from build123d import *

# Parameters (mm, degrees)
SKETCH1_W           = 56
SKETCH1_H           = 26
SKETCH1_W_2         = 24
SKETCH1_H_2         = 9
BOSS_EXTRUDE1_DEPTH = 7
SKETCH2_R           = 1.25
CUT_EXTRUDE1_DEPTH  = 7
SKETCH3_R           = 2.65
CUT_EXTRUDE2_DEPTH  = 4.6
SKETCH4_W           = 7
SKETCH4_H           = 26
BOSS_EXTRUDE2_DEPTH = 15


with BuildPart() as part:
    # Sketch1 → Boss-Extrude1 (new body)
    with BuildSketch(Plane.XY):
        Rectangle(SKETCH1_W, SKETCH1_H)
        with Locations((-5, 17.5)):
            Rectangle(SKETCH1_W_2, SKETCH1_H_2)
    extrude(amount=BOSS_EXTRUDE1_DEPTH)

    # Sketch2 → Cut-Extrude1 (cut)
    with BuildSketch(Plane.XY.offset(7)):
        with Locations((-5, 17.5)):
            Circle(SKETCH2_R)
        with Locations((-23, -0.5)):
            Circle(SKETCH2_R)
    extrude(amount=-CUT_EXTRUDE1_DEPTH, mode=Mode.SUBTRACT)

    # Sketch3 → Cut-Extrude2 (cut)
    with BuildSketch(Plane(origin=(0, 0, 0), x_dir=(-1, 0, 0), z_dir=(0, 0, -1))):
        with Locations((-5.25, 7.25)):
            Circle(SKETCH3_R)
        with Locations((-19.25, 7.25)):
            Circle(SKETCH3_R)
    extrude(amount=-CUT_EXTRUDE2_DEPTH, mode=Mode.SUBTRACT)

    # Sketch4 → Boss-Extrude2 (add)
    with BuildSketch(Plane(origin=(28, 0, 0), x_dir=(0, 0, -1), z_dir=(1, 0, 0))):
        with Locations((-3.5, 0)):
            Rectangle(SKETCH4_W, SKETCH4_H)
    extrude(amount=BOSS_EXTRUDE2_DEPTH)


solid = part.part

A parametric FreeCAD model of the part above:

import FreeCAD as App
import Part
import Sketcher

V = App.Vector
Q = App.Units.Quantity


def add_polygon(sketch, points):
    """Adds a closed chain of lines whose ends are joined by coincident constraints."""
    first, n = sketch.GeometryCount, len(points)
    for a, b in zip(points, points[1:] + points[:1]):
        sketch.addGeometry(Part.LineSegment(App.Vector(*a, 0), App.Vector(*b, 0)), False)
    for i in range(n):
        sketch.addConstraint(Sketcher.Constraint("Coincident", first + i, 2, first + (i + 1) % n, 1))

doc = App.newDocument("Part")
params = doc.addObject("Spreadsheet::Sheet", "Params")
for row, (alias, value) in enumerate([
    ("sketch1_width", "56 mm"),
    ("sketch1_width2", "21 mm"),
    ("sketch1_width3", "24 mm"),
    ("sketch1_height", "26 mm"),
    ("sketch1_height2", "9 mm"),
    ("pad1_length", "7 mm"),
    ("sketch2_diameter", "2.5 mm"),
    ("pocket1_length", "7 mm"),
    ("sketch3_diameter", "5.3 mm"),
    ("pocket2_length", "4.6 mm"),
    ("sketch4_width", "26 mm"),
    ("sketch4_height", "7 mm"),
    ("pad2_length", "15 mm"),
], start=1):
    params.set(f"A{row}", alias)
    params.set(f"B{row}", "=" + value)
    params.setAlias(f"B{row}", alias)

body = doc.addObject("PartDesign::Body", "Body")

sketch1 = body.newObject("Sketcher::SketchObject", "Sketch")
sketch1.AttachmentSupport = (doc.getObject("XY_Plane"), [""])
sketch1.MapMode = "FlatFace"
add_polygon(sketch1, [(-28, 13), (-28, -13), (28, -13), (28, 13), (7, 13), (7, 22), (-17, 22), (-17, 13)])
sketch1.addConstraint([
    Sketcher.Constraint("Vertical", 0),
    Sketcher.Constraint("Horizontal", 1),
    Sketcher.Constraint("Vertical", 2),
    Sketcher.Constraint("Horizontal", 3),
    Sketcher.Constraint("Vertical", 4),
    Sketcher.Constraint("Horizontal", 5),
    Sketcher.Constraint("Vertical", 6),
    Sketcher.Constraint("Horizontal", 7),
    Sketcher.Constraint("Symmetric", 0, 2, 2, 2, -1, 1),
    Sketcher.Constraint("Horizontal", 3, 2, 6, 2),
    Sketcher.Constraint("DistanceX", 1, 1, 1, 2, Q("56 mm")),
    Sketcher.Constraint("DistanceX", 3, 2, 3, 1, Q("21 mm")),
    Sketcher.Constraint("DistanceX", 5, 2, 5, 1, Q("24 mm")),
    Sketcher.Constraint("DistanceY", 0, 2, 0, 1, Q("26 mm")),
    Sketcher.Constraint("DistanceY", 4, 1, 4, 2, Q("9 mm")),
])
sketch1.setExpression("Constraints[18]", "Params.sketch1_width")
sketch1.setExpression("Constraints[19]", "Params.sketch1_width2")
sketch1.setExpression("Constraints[20]", "Params.sketch1_width3")
sketch1.setExpression("Constraints[21]", "Params.sketch1_height")
sketch1.setExpression("Constraints[22]", "Params.sketch1_height2")
pad1 = body.newObject("PartDesign::Pad", "Pad")
pad1.Profile = sketch1
pad1.setExpression("Length", "Params.pad1_length")

sketch2 = body.newObject("Sketcher::SketchObject", "Sketch001")
sketch2.AttachmentSupport = (doc.getObject("XY_Plane"), [""])
sketch2.MapMode = "FlatFace"
sketch2.AttachmentOffset = App.Placement(V(0, 0, 7), App.Rotation())
sketch2.addGeometry([
    Part.Circle(V(-5, 17.5, 0), V(0, 0, 1), 1.2),
    Part.Circle(V(-23, -0.5, 0), V(0, 0, 1), 1.2),
], False)
sketch2.addConstraint([
    Sketcher.Constraint("Equal", 0, 1),
    Sketcher.Constraint("Diameter", 0, Q("2.5 mm")),
    Sketcher.Constraint("DistanceX", 0, 3, -1, 1, Q("5 mm")),
    Sketcher.Constraint("DistanceX", 1, 3, -1, 1, Q("23 mm")),
    Sketcher.Constraint("DistanceY", 1, 3, 0, 3, Q("18 mm")),
    Sketcher.Constraint("DistanceY", -1, 1, 0, 3, Q("17.5 mm")),
])
sketch2.setExpression("Constraints[1]", "Params.sketch2_diameter")
pocket1 = body.newObject("PartDesign::Pocket", "Pocket")
pocket1.Profile = sketch2
pocket1.setExpression("Length", "Params.pocket1_length")

sketch3 = body.newObject("Sketcher::SketchObject", "Sketch002")
sketch3.AttachmentSupport = (doc.getObject("XY_Plane"), [""])
sketch3.MapMode = "FlatFace"
sketch3.addGeometry([
    Part.Circle(V(5.2, 7.2, 0), V(0, 0, 1), 2.6),
    Part.Circle(V(19.2, 7.2, 0), V(0, 0, 1), 2.6),
], False)
sketch3.addConstraint([
    Sketcher.Constraint("Equal", 0, 1),
    Sketcher.Constraint("Horizontal", 0, 3, 1, 3),
    Sketcher.Constraint("Diameter", 0, Q("5.3 mm")),
    Sketcher.Constraint("DistanceX", 0, 3, 1, 3, Q("14 mm")),
    Sketcher.Constraint("DistanceX", -1, 1, 0, 3, Q("5.25 mm")),
    Sketcher.Constraint("DistanceY", -1, 1, 0, 3, Q("7.25 mm")),
])
sketch3.setExpression("Constraints[2]", "Params.sketch3_diameter")
pocket2 = body.newObject("PartDesign::Pocket", "Pocket001")
pocket2.Profile = sketch3
pocket2.setExpression("Length", "Params.pocket2_length")
pocket2.Reversed = True

sketch4 = body.newObject("Sketcher::SketchObject", "Sketch003")
sketch4.AttachmentSupport = (doc.getObject("YZ_Plane"), [""])
sketch4.MapMode = "FlatFace"
sketch4.AttachmentOffset = App.Placement(V(0, 0, 28), App.Rotation())
add_polygon(sketch4, [(13, 7), (-13, 7), (-13, 0), (13, 0)])
sketch4.addConstraint([
    Sketcher.Constraint("Horizontal", 0),
    Sketcher.Constraint("Vertical", 1),
    Sketcher.Constraint("Horizontal", 2),
    Sketcher.Constraint("Vertical", 3),
    Sketcher.Constraint("Symmetric", 1, 2, 2, 2, -1, 1),
    Sketcher.Constraint("DistanceX", 0, 2, 0, 1, Q("26 mm")),
    Sketcher.Constraint("DistanceY", 1, 2, 1, 1, Q("7 mm")),
])
sketch4.setExpression("Constraints[9]", "Params.sketch4_width")
sketch4.setExpression("Constraints[10]", "Params.sketch4_height")
pad2 = body.newObject("PartDesign::Pad", "Pad001")
pad2.Profile = sketch4
pad2.setExpression("Length", "Params.pad2_length")

doc.recompute()
